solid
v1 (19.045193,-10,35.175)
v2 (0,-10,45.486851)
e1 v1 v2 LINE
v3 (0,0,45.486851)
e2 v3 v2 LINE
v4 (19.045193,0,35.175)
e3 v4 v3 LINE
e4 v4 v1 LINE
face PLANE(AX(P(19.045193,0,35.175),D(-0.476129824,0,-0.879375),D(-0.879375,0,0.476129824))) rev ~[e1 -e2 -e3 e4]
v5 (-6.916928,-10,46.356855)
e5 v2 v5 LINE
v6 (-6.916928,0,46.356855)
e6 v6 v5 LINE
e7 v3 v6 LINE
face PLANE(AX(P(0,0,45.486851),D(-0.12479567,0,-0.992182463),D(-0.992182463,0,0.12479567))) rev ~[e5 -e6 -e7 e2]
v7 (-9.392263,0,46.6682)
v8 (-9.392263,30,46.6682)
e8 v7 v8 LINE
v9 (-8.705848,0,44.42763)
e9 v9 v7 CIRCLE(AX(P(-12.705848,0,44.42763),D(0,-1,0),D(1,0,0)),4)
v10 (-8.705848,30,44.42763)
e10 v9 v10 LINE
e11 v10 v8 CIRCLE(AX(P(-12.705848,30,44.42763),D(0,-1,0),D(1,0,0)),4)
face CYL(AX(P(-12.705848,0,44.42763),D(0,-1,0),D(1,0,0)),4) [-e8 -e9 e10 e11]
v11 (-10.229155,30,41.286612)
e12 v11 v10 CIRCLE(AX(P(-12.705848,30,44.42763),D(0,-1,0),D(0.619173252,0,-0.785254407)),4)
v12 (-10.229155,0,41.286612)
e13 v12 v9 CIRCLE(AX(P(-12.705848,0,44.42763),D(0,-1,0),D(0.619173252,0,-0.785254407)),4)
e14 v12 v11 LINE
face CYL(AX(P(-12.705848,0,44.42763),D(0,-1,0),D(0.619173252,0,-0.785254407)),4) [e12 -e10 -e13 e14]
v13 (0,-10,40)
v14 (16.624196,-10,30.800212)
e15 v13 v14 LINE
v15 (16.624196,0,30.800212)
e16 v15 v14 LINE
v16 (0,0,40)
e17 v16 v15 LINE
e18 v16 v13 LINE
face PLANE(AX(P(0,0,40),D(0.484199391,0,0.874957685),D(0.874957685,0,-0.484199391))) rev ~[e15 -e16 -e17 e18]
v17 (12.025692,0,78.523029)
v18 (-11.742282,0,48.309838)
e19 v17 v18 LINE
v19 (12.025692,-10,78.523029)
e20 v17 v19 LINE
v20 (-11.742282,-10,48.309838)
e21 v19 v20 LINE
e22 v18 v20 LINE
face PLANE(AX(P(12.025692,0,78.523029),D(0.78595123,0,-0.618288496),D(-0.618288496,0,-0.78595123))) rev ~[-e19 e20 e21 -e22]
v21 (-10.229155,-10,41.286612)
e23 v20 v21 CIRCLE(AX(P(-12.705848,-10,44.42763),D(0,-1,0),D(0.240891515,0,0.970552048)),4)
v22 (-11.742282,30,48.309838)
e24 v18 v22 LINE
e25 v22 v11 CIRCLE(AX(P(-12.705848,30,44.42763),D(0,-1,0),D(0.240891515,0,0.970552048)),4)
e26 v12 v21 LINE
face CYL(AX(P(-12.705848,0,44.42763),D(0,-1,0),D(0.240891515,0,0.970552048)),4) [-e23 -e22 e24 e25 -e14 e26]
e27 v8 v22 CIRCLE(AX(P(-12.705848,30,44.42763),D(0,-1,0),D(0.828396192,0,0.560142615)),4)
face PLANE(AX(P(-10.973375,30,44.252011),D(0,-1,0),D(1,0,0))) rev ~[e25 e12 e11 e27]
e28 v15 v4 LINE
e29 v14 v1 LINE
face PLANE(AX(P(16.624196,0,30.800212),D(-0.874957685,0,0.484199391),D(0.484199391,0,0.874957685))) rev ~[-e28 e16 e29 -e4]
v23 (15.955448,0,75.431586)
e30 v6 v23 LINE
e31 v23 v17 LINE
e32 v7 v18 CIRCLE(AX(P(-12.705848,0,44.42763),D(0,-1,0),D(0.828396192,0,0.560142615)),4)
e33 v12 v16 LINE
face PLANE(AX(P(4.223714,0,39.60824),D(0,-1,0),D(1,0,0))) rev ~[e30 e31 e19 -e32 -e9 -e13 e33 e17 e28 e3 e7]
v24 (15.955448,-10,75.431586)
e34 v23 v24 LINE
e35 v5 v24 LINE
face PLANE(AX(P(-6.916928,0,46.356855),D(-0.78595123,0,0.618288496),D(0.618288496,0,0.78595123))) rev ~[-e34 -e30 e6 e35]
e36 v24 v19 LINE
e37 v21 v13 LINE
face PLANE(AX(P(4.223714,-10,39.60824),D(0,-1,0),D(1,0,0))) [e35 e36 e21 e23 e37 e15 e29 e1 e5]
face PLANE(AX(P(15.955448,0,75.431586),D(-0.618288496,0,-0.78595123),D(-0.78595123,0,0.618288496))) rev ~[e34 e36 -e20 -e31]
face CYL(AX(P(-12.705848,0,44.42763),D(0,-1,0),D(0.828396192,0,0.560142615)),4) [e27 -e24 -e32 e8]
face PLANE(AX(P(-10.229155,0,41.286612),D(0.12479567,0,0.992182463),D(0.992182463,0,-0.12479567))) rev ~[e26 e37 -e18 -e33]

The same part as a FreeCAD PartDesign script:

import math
import FreeCAD as App
import Part
import Sketcher

doc = App.newDocument("Part")
body = doc.addObject("PartDesign::Body", "Body")

# Sketch on XZ plane
sketch1 = doc.addObject("Sketcher::SketchObject", "Sketch")
body.addObject(sketch1)
sketch1.AttachmentSupport = (doc.XZ_Plane, [""])
sketch1.MapMode = "FlatFace"
sketch1.addGeometry([
    Part.ArcOfCircle(Part.Circle(App.Vector(-12.7, 44.4, 0), App.Vector(0, 0, 1), 4), math.radians(-52), math.radians(0)),
    Part.ArcOfCircle(Part.Circle(App.Vector(-12.7, 44.4, 0), App.Vector(0, 0, 1), 4), math.radians(0), math.radians(34)),
    Part.ArcOfCircle(Part.Circle(App.Vector(-12.7, 44.4, 0), App.Vector(0, 0, 1), 4), math.radians(34), math.radians(76)),
    Part.ArcOfCircle(Part.Circle(App.Vector(-12.7, 44.4, 0), App.Vector(0, 0, 1), 4), math.radians(76), math.radians(308)),
], False)
sketch1.addConstraint([
    Sketcher.Constraint("Tangent", 0, 2, 1, 1),
    Sketcher.Constraint("Tangent", 1, 2, 2, 1),
    Sketcher.Constraint("Tangent", 2, 2, 3, 1),
    Sketcher.Constraint("Tangent", 3, 2, 0, 1),
    Sketcher.Constraint("Equal", 0, 1),
    Sketcher.Constraint("Horizontal", 3, 3, 0, 2),
    Sketcher.Constraint("Radius", 0, 4.0),
    Sketcher.Constraint("DistanceY", -1, 1, 1, 2, 46.6682),
    Sketcher.Constraint("DistanceX", 0, 3, -1, 1, 12.705848),
    Sketcher.Constraint("DistanceY", -1, 1, 0, 3, 44.42763),
    Sketcher.Constraint("DistanceY", -1, 1, 2, 2, 48.309838),
    Sketcher.Constraint("DistanceX", 3, 2, -1, 1, 10.229155),
])
pad1 = doc.addObject("PartDesign::Pad", "Pad")
body.addObject(pad1)
pad1.Profile = sketch1
pad1.Length = 10

# Sketch on XZ plane
sketch2 = doc.addObject("Sketcher::SketchObject", "Sketch001")
body.addObject(sketch2)
sketch2.AttachmentSupport = (doc.XZ_Plane, [""])
sketch2.MapMode = "FlatFace"
sketch2.addGeometry([
    Part.LineSegment(App.Vector(-10.2, 41.3, 0), App.Vector(0, 40, 0)),  # 0
    Part.LineSegment(App.Vector(0, 40, 0), App.Vector(16.6, 30.8, 0)),  # 1
    Part.LineSegment(App.Vector(16.6, 30.8, 0), App.Vector(19, 35.2, 0)),  # 2
    Part.LineSegment(App.Vector(19, 35.2, 0), App.Vector(0, 45.5, 0)),  # 3
    Part.LineSegment(App.Vector(0, 45.5, 0), App.Vector(-6.9, 46.4, 0)),  # 4
    Part.LineSegment(App.Vector(-6.9, 46.4, 0), App.Vector(16, 75.4, 0)),  # 5
    Part.LineSegment(App.Vector(16, 75.4, 0), App.Vector(12, 78.5, 0)),  # 6
    Part.LineSegment(App.Vector(12, 78.5, 0), App.Vector(-11.7, 48.3, 0)),  # 7
    Part.ArcOfCircle(Part.Circle(App.Vector(-12.7, 44.4, 0), App.Vector(0, 0, 1), 4), math.radians(34), math.radians(76)),  # 8
    Part.ArcOfCircle(Part.Circle(App.Vector(-12.7, 44.4, 0), App.Vector(0, 0, 1), 4), math.radians(0), math.radians(34)),  # 9
    Part.ArcOfCircle(Part.Circle(App.Vector(-12.7, 44.4, 0), App.Vector(0, 0, 1), 4), math.radians(-52), math.radians(0)),  # 10
], False)
sketch2.addConstraint([
    Sketcher.Constraint("Coincident", 0, 2, 1, 1),
    Sketcher.Constraint("Coincident", 1, 2, 2, 1),
    Sketcher.Constraint("Coincident", 2, 2, 3, 1),
    Sketcher.Constraint("Coincident", 3, 2, 4, 1),
    Sketcher.Constraint("Coincident", 4, 2, 5, 1),
    Sketcher.Constraint("Coincident", 5, 2, 6, 1),
    Sketcher.Constraint("Coincident", 6, 2, 7, 1),
    Sketcher.Constraint("Coincident", 7, 2, 8, 2),
    Sketcher.Constraint("Tangent", 8, 1, 9, 2),
    Sketcher.Constraint("Tangent", 9, 1, 10, 2),
    Sketcher.Constraint("Coincident", 10, 1, 0, 1),
    Sketcher.Constraint("Coincident", 10, 3, 8, 3),
    Sketcher.Constraint("PointOnObject", 0, 2, -2),
    Sketcher.Constraint("PointOnObject", 3, 2, -2),
    Sketcher.Constraint("Perpendicular", 1, 2),
    Sketcher.Constraint("Parallel", 0, 4),
    Sketcher.Constraint("Perpendicular", 5, 6),
    Sketcher.Constraint("Perpendicular", 6, 7),
    Sketcher.Constraint("Horizontal", 10, 3, 9, 1),
    Sketcher.Constraint("Equal", 2, 6),
    Sketcher.Constraint("Radius", 8, 4.0),
    Sketcher.Constraint("Distance", 1, 19.0),
    Sketcher.Constraint("Distance", 2, 5.0),
    Sketcher.Constraint("DistanceY", -1, 1, 0, 2, 40.0),
    Sketcher.Constraint("DistanceY", -1, 1, 2, 2, 35.175),
    Sketcher.Constraint("DistanceY", -1, 1, 8, 1, 46.6682),
    Sketcher.Constraint("DistanceY", 8, 3, 6, 2, 34.095399),
    Sketcher.Constraint("Distance", 0, 10.309752),
    Sketcher.Constraint("Distance", 7, 38.441559),
    Sketcher.Constraint("DistanceX", 8, 3, -1, 1, 12.705848),
    Sketcher.Constraint("DistanceY", -1, 1, 8, 3, 44.42763),
    Sketcher.Constraint("DistanceY", -1, 1, 3, 2, 45.486851),
    Sketcher.Constraint("DistanceX", -1, 1, 6, 2, 12.025692),
])
pad2 = doc.addObject("PartDesign::Pad", "Pad001")
body.addObject(pad2)
pad2.Profile = sketch2
pad2.Length = 10

# Sketch on XZ plane
sketch3 = doc.addObject("Sketcher::SketchObject", "Sketch002")
body.addObject(sketch3)
sketch3.AttachmentSupport = (doc.XZ_Plane, [""])
sketch3.MapMode = "FlatFace"
sketch3.addGeometry([
    Part.ArcOfCircle(Part.Circle(App.Vector(-12.7, 44.4, 0), App.Vector(0, 0, 1), 4), math.radians(-52), math.radians(0)),
    Part.ArcOfCircle(Part.Circle(App.Vector(-12.7, 44.4, 0), App.Vector(0, 0, 1), 4), math.radians(0), math.radians(34)),
    Part.ArcOfCircle(Part.Circle(App.Vector(-12.7, 44.4, 0), App.Vector(0, 0, 1), 4), math.radians(34), math.radians(76)),
    Part.ArcOfCircle(Part.Circle(App.Vector(-12.7, 44.4, 0), App.Vector(0, 0, 1), 4), math.radians(76), math.radians(308)),
], False)
sketch3.addConstraint([
    Sketcher.Constraint("Tangent", 0, 2, 1, 1),
    Sketcher.Constraint("Tangent", 1, 2, 2, 1),
    Sketcher.Constraint("Tangent", 2, 2, 3, 1),
    Sketcher.Constraint("Tangent", 3, 2, 0, 1),
    Sketcher.Constraint("Equal", 0, 1),
    Sketcher.Constraint("Horizontal", 3, 3, 0, 2),
    Sketcher.Constraint("Radius", 0, 4.0),
    Sketcher.Constraint("DistanceY", -1, 1, 1, 2, 46.6682),
    Sketcher.Constraint("DistanceX", 0, 3, -1, 1, 12.705848),
    Sketcher.Constraint("DistanceY", -1, 1, 0, 3, 44.42763),
    Sketcher.Constraint("DistanceY", -1, 1, 2, 2, 48.309838),
    Sketcher.Constraint("DistanceX", 3, 2, -1, 1, 10.229155),
])
pad3 = doc.addObject("PartDesign::Pad", "Pad002")
body.addObject(pad3)
pad3.Profile = sketch3
pad3.Length = 30
pad3.Reversed = True

doc.recompute()
